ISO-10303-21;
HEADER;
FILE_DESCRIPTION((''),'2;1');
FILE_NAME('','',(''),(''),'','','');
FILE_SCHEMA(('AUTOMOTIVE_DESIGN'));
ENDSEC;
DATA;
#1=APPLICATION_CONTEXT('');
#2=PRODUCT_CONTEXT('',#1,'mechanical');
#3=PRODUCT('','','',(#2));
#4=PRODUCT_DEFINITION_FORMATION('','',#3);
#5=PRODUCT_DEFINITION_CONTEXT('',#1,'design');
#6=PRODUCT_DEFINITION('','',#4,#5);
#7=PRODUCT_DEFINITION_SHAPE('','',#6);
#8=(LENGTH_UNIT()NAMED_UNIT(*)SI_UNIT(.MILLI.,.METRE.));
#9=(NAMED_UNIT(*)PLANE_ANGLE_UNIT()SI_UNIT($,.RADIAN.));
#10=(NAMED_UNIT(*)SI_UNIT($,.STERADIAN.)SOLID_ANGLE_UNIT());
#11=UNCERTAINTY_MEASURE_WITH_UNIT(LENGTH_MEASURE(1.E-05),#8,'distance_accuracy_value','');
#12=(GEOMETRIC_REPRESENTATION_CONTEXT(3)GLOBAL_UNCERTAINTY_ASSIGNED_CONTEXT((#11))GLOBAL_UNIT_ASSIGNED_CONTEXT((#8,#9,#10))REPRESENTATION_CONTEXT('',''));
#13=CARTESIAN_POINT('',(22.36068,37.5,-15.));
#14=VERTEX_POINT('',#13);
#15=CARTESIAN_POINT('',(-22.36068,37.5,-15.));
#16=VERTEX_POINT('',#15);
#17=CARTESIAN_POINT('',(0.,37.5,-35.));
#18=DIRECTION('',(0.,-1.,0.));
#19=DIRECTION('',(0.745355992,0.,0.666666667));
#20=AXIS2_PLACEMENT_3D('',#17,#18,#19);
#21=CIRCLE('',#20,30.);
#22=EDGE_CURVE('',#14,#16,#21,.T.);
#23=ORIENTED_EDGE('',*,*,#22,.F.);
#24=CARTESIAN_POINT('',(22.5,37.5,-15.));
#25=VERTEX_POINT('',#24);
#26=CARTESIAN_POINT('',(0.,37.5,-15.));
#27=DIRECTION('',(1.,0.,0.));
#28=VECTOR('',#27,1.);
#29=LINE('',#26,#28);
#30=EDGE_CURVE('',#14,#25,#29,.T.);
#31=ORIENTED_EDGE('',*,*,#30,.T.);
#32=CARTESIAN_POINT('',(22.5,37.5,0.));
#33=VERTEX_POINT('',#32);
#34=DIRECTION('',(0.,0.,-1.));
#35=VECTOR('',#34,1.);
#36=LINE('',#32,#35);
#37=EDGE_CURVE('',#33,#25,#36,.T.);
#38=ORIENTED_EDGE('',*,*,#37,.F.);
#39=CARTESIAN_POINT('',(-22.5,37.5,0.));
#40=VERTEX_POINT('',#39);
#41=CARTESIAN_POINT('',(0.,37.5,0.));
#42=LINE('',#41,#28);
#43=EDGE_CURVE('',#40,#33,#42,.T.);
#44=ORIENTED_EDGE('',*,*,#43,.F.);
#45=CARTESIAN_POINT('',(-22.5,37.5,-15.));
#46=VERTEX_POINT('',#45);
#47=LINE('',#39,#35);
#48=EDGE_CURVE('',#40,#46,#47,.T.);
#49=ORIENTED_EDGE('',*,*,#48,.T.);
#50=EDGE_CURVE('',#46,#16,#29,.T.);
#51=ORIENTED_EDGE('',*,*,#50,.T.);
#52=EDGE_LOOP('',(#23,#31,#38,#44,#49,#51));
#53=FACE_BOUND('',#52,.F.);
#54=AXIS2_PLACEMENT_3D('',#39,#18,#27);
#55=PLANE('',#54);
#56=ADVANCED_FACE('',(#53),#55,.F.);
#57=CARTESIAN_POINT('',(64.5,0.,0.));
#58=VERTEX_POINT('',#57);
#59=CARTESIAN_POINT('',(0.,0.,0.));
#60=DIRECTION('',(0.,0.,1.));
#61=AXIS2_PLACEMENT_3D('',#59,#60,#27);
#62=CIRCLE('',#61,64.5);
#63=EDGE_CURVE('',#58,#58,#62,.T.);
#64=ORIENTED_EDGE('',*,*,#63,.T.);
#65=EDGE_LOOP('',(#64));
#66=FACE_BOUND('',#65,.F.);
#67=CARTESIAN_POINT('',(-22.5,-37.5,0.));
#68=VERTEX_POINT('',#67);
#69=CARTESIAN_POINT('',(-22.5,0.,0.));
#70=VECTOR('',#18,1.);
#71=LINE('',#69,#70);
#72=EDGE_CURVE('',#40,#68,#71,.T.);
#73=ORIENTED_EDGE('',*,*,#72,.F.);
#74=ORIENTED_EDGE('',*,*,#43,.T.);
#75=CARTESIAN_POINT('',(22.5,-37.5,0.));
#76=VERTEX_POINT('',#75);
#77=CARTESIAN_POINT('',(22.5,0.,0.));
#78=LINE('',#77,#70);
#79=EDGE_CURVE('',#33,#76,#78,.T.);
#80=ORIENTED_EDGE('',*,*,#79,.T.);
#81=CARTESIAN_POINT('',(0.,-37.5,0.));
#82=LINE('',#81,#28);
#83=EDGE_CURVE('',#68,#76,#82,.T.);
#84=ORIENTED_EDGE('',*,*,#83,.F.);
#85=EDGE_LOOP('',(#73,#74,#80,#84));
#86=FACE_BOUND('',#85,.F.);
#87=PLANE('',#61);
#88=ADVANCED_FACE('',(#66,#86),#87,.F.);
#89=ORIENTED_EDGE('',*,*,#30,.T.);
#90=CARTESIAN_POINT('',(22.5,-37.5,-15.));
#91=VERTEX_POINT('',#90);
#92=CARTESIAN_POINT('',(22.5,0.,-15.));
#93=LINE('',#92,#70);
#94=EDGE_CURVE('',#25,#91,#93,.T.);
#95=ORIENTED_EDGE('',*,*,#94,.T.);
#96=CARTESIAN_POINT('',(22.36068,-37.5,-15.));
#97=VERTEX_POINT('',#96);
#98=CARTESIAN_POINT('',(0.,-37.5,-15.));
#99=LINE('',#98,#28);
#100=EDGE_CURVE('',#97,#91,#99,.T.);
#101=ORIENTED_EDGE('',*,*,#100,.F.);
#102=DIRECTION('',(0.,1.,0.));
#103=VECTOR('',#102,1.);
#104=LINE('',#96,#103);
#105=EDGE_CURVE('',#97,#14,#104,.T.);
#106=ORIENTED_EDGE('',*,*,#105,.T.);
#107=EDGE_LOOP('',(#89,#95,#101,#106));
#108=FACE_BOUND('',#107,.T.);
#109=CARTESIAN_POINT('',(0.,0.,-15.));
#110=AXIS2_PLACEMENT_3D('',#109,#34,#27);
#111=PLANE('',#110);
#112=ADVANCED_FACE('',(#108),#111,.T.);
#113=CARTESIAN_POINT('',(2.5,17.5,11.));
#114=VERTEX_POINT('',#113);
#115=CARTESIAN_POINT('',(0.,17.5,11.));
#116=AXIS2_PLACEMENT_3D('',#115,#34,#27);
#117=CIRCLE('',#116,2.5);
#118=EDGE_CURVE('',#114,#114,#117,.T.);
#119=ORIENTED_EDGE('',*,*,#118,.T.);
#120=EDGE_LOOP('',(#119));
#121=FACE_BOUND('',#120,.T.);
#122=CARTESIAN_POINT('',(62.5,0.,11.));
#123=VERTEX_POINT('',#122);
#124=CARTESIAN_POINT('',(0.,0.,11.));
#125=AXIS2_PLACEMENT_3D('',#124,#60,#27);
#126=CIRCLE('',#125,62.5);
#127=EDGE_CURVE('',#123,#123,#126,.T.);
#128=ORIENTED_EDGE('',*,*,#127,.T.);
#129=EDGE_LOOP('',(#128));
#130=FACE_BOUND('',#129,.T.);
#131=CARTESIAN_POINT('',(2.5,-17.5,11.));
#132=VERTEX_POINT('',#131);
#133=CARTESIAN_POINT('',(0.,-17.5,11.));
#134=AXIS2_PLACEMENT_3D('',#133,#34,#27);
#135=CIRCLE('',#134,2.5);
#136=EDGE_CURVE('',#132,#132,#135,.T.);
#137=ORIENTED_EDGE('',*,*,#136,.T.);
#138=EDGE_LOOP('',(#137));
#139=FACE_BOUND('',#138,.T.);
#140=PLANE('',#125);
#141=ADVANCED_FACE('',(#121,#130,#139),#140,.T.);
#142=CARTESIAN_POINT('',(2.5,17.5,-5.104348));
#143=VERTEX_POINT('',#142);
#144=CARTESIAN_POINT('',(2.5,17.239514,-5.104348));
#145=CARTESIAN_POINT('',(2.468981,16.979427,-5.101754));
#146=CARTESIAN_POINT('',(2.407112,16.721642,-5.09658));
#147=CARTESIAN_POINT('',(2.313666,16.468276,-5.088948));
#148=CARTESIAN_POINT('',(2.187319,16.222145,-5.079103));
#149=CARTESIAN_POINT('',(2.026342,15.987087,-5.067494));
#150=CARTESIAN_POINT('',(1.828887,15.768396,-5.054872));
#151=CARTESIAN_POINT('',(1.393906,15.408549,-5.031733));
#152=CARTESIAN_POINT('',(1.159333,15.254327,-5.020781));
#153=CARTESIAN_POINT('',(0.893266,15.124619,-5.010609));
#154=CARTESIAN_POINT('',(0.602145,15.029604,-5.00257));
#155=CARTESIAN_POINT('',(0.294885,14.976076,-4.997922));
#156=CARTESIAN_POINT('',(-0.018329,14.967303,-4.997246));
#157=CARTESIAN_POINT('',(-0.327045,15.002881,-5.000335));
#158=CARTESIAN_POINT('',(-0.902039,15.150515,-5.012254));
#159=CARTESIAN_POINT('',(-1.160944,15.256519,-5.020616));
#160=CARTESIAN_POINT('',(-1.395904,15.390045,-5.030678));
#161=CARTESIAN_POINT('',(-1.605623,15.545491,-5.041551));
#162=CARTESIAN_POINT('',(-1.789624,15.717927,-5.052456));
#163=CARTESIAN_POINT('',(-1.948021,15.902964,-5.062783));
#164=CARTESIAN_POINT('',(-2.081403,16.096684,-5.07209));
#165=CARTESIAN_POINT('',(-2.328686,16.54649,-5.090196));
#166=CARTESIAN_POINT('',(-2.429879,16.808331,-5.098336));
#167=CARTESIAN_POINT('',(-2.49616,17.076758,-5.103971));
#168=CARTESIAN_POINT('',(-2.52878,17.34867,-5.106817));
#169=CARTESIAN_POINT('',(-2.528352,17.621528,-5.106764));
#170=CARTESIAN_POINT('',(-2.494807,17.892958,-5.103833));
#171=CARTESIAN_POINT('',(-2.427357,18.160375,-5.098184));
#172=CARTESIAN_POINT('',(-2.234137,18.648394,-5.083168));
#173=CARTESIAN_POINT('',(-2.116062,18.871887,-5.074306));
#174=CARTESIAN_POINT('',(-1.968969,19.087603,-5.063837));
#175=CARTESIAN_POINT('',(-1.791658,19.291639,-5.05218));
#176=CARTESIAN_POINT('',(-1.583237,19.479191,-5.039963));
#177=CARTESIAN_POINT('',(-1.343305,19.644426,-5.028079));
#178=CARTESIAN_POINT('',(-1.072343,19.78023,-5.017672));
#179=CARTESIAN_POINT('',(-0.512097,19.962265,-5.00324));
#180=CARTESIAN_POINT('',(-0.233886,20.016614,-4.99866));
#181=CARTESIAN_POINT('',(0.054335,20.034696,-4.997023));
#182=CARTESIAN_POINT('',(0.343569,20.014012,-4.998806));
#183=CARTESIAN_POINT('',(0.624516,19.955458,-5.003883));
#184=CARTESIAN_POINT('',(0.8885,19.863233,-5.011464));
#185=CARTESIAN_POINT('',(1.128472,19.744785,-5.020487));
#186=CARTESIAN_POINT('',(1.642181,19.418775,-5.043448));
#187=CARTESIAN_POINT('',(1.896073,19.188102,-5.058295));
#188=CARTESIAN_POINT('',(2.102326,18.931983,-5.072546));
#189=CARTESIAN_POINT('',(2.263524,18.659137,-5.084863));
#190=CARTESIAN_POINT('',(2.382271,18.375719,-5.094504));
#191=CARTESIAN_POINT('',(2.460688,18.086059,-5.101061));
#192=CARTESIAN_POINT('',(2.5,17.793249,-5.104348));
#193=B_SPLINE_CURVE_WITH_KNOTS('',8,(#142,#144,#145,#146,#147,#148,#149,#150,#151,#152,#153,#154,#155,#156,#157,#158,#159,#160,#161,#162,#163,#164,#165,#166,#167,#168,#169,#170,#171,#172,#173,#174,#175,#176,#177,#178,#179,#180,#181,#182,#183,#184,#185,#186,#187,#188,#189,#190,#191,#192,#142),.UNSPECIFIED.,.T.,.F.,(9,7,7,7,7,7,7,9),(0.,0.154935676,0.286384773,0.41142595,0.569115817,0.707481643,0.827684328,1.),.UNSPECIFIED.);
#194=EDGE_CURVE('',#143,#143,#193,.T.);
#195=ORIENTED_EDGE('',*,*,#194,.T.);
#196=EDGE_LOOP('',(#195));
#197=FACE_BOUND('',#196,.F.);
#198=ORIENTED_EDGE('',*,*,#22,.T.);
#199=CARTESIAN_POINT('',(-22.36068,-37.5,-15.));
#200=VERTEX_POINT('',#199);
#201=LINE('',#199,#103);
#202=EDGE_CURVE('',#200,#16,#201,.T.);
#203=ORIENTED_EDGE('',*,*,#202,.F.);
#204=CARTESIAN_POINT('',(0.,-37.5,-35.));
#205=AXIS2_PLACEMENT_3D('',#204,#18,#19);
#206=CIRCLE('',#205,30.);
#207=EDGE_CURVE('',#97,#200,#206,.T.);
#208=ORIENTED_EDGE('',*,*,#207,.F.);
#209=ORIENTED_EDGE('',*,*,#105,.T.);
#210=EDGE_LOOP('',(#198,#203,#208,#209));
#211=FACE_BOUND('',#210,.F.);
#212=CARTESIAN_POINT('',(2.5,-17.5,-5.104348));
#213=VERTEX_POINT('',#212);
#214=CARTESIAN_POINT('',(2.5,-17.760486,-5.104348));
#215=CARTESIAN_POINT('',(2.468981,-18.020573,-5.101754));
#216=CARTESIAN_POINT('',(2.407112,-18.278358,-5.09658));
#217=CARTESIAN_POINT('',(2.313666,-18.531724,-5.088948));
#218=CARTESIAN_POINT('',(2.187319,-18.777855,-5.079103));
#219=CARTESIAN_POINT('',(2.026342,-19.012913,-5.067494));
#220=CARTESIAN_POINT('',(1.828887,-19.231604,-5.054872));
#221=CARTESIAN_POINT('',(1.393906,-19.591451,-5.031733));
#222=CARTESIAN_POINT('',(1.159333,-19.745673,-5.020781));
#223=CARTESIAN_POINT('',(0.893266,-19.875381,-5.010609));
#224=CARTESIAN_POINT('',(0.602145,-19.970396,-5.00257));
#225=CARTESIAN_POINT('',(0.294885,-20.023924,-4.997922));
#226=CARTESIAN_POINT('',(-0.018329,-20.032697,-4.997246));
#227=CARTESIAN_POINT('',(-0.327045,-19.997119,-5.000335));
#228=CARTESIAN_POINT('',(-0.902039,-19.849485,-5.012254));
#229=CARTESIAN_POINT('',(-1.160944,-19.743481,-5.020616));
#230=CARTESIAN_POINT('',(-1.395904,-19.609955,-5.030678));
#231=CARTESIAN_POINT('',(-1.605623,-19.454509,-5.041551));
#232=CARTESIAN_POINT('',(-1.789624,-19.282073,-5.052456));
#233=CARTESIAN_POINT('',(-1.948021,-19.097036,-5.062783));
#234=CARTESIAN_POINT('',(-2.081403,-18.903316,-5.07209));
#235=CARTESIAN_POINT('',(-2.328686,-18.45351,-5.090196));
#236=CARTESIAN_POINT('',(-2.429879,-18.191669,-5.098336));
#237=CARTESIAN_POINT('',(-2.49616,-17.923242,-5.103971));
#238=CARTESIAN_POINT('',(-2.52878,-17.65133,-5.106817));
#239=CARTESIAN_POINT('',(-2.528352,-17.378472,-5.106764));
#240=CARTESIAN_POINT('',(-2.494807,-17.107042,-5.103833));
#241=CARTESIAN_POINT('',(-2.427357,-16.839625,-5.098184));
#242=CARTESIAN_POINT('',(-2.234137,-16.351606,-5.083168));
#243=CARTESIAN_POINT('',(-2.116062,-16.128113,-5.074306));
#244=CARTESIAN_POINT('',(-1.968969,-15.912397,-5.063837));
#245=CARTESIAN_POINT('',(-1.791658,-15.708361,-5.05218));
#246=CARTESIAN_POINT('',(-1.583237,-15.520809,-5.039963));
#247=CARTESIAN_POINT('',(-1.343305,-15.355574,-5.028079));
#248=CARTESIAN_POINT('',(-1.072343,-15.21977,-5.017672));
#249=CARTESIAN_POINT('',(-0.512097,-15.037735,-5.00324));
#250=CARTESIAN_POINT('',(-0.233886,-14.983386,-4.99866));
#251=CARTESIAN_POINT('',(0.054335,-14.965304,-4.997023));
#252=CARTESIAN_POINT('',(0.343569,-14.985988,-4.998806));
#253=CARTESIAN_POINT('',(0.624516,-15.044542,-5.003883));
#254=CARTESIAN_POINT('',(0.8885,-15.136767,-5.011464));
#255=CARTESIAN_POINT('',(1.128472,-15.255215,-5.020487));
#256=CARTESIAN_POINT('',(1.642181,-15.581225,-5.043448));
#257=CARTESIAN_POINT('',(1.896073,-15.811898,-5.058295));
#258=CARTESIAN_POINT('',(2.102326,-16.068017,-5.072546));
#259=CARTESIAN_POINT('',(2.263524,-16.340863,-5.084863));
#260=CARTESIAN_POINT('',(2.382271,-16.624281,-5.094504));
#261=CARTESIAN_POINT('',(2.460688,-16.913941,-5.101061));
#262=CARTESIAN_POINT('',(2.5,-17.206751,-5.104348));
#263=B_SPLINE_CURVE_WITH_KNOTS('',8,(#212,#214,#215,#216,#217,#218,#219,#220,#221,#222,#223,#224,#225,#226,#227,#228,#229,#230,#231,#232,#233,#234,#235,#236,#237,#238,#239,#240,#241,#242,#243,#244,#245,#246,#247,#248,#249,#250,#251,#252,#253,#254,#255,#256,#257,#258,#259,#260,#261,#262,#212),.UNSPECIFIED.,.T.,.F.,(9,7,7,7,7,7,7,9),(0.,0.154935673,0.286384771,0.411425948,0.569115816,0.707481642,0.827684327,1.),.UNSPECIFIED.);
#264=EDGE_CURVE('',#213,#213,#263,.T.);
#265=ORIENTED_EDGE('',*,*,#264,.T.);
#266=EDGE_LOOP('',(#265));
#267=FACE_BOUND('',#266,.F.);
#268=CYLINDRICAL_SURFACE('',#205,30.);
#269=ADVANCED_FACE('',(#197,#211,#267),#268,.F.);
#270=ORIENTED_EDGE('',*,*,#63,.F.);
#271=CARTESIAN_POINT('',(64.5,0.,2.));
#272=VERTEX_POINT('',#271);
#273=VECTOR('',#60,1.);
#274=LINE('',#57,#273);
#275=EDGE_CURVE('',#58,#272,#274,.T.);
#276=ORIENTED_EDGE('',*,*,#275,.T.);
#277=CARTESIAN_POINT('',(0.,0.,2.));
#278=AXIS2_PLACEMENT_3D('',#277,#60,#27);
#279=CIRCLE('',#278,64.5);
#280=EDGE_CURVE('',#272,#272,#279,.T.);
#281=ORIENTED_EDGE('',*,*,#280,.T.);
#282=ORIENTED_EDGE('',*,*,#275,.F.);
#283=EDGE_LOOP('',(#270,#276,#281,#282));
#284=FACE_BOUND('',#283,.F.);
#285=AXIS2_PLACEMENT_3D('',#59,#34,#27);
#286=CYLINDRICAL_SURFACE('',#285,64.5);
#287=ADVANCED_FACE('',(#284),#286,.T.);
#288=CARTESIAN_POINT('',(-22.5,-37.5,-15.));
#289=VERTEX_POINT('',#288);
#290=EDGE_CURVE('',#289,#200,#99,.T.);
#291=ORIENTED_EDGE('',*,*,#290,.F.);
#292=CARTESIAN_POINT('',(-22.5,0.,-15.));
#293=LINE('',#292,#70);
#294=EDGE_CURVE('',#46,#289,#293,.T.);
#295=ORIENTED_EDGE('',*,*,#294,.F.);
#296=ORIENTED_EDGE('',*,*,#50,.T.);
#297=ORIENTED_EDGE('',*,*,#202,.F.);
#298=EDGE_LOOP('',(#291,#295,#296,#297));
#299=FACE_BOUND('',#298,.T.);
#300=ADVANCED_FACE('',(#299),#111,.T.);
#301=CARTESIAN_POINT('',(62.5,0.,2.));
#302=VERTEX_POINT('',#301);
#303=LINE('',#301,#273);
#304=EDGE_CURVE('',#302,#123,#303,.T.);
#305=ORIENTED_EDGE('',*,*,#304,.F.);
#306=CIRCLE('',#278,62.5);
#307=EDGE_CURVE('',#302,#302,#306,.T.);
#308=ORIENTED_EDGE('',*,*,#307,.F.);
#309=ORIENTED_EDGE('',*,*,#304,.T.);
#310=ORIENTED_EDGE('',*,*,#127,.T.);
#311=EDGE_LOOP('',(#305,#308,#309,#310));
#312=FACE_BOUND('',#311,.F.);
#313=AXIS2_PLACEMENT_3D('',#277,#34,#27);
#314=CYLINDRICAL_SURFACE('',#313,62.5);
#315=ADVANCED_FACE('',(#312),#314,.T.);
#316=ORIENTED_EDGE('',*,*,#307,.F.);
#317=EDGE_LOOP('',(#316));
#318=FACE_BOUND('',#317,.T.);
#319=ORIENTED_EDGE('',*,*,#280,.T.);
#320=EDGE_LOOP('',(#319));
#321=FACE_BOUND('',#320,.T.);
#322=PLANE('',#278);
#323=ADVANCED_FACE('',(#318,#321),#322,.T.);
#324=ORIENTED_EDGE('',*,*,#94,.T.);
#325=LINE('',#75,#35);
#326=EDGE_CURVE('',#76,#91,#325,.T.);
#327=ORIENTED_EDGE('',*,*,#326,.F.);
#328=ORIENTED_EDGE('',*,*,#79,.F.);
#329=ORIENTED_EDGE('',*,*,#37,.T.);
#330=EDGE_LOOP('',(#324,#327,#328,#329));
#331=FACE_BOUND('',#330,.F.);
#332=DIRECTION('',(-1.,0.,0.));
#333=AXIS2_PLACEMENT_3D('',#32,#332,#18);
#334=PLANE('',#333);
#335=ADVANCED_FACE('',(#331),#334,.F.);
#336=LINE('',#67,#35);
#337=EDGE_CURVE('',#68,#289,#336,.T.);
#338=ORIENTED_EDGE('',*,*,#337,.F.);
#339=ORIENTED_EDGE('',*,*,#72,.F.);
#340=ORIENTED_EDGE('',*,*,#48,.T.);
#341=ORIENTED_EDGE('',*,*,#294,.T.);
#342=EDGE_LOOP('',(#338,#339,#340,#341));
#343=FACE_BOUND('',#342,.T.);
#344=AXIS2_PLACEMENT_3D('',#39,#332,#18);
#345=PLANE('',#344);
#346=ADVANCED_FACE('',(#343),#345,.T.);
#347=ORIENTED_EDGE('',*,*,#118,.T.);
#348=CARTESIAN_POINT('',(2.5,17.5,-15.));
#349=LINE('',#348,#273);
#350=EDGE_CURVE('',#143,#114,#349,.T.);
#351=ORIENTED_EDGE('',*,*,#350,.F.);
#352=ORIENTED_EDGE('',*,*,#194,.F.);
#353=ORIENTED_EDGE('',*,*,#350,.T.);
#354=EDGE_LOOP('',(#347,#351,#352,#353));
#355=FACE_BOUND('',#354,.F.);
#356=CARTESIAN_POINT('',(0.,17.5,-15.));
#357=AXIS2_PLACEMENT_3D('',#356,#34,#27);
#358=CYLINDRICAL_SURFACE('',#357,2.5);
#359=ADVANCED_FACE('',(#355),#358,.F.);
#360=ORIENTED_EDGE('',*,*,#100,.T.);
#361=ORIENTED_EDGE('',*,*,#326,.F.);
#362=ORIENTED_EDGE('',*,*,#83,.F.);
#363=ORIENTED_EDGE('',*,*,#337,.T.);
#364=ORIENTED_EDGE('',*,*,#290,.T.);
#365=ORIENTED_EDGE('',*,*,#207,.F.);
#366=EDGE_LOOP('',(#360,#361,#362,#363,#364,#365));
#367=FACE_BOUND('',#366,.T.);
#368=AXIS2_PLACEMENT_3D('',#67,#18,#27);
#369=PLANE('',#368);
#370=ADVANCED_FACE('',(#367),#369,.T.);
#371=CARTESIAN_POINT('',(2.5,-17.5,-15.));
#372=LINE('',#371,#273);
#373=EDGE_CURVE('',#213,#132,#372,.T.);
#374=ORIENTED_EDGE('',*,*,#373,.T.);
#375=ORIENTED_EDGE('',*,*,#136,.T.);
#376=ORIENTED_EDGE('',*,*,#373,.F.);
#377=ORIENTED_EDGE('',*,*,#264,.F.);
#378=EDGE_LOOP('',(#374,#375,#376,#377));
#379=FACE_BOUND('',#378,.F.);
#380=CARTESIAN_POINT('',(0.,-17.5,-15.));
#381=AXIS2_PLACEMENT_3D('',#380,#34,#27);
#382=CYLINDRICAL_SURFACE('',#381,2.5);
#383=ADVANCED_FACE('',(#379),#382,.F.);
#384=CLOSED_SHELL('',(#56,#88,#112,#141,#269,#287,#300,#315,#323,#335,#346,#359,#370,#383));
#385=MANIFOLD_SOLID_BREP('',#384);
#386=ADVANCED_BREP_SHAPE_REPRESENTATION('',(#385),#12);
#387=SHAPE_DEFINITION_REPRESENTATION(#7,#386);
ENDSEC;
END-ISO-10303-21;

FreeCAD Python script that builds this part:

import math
import FreeCAD as App
import Part
import Sketcher

V = App.Vector
Q = App.Units.Quantity

doc = App.newDocument("Part")
body = doc.addObject("PartDesign::Body", "Body")

# Sketch on XY plane
sketch1 = body.newObject("Sketcher::SketchObject", "Sketch")
sketch1.AttachmentSupport = (doc.getObject("XY_Plane"), [""])
sketch1.MapMode = "FlatFace"
sketch1.addGeometry(Part.Circle(V(0, 0, 0), V(0, 0, 1), 64), False)
sketch1.addConstraint(Sketcher.Constraint("Coincident", 0, 3, -1, 1))
sketch1.addConstraint(Sketcher.Constraint("Diameter", 0, Q("129 mm")))
pad1 = body.newObject("PartDesign::Pad", "Pad")
pad1.Profile = sketch1
pad1.Length = 2

# Sketch on XY plane
sketch2 = body.newObject("Sketcher::SketchObject", "Sketch001")
sketch2.AttachmentSupport = (doc.getObject("XY_Plane"), [""])
sketch2.MapMode = "FlatFace"
sketch2.AttachmentOffset = App.Placement(V(0, 0, 2), App.Rotation())
sketch2.addGeometry(Part.Circle(V(0, 0, 0), V(0, 0, 1), 62), False)
sketch2.addConstraint(Sketcher.Constraint("Coincident", 0, 3, -1, 1))
sketch2.addConstraint(Sketcher.Constraint("Diameter", 0, Q("125 mm")))
pad2 = body.newObject("PartDesign::Pad", "Pad001")
pad2.Profile = sketch2
pad2.Length = 9

# Sketch on XY plane
sketch3 = body.newObject("Sketcher::SketchObject", "Sketch002")
sketch3.AttachmentSupport = (doc.getObject("XY_Plane"), [""])
sketch3.MapMode = "FlatFace"
sketch3.addGeometry(Part.LineSegment(V(-22, -38, 0), V(-22, 38, 0)), False)
sketch3.addGeometry(Part.LineSegment(V(-22, 38, 0), V(22, 38, 0)), False)
sketch3.addGeometry(Part.LineSegment(V(22, 38, 0), V(22, -38, 0)), False)
sketch3.addGeometry(Part.LineSegment(V(22, -38, 0), V(-22, -38, 0)), False)
sketch3.addConstraint(Sketcher.Constraint("Coincident", 0, 2, 1, 1))
sketch3.addConstraint(Sketcher.Constraint("Coincident", 1, 2, 2, 1))
sketch3.addConstraint(Sketcher.Constraint("Coincident", 2, 2, 3, 1))
sketch3.addConstraint(Sketcher.Constraint("Coincident", 3, 2, 0, 1))
sketch3.addConstraint(Sketcher.Constraint("Vertical", 0))
sketch3.addConstraint(Sketcher.Constraint("Horizontal", 1))
sketch3.addConstraint(Sketcher.Constraint("Vertical", 2))
sketch3.addConstraint(Sketcher.Constraint("Horizontal", 3))
sketch3.addConstraint(Sketcher.Constraint("Symmetric", 0, 2, 2, 2, -1, 1))
sketch3.addConstraint(Sketcher.Constraint("DistanceX", 1, 1, 1, 2, Q("45 mm")))
sketch3.addConstraint(Sketcher.Constraint("DistanceY", 0, 1, 0, 2, Q("75 mm")))
pad3 = body.newObject("PartDesign::Pad", "Pad002")
pad3.Profile = sketch3
pad3.Length = 15
pad3.Reversed = True

# Sketch on XZ plane
sketch4 = body.newObject("Sketcher::SketchObject", "Sketch003")
sketch4.AttachmentSupport = (doc.getObject("XZ_Plane"), [""])
sketch4.MapMode = "FlatFace"
sketch4.AttachmentOffset = App.Placement(V(0, 0, 37.5), App.Rotation())
sketch4.addGeometry(Part.LineSegment(V(-22, -15, 0), V(22, -15, 0)), False)
sketch4.addGeometry(Part.ArcOfCircle(Part.Circle(V(0, -35, 0), V(0, 0, 1), 30), math.radians(42), math.radians(138)), False)
sketch4.addConstraint(Sketcher.Constraint("Coincident", 0, 1, 1, 2))
sketch4.addConstraint(Sketcher.Constraint("Coincident", 1, 1, 0, 2))
sketch4.addConstraint(Sketcher.Constraint("Horizontal", 0))
sketch4.addConstraint(Sketcher.Constraint("PointOnObject", 1, 3, -2))
sketch4.addConstraint(Sketcher.Constraint("Radius", 1, Q("30 mm")))
sketch4.addConstraint(Sketcher.Constraint("DistanceY", 1, 3, -1, 1, Q("35 mm")))
sketch4.addConstraint(Sketcher.Constraint("DistanceY", 0, 1, -1, 1, Q("15 mm")))
pocket1 = body.newObject("PartDesign::Pocket", "Pocket")
pocket1.Profile = sketch4
pocket1.Length = 75

# Sketch on XY plane
sketch5 = body.newObject("Sketcher::SketchObject", "Sketch004")
sketch5.AttachmentSupport = (doc.getObject("XY_Plane"), [""])
sketch5.MapMode = "FlatFace"
sketch5.AttachmentOffset = App.Placement(V(0, 0, -15), App.Rotation())
sketch5.addGeometry(Part.Circle(V(0, -17.5, 0), V(0, 0, 1), 2.5), False)
sketch5.addGeometry(Part.Circle(V(0, 17.5, 0), V(0, 0, 1), 2.5), False)
sketch5.addConstraint(Sketcher.Constraint("Equal", 0, 1))
sketch5.addConstraint(Sketcher.Constraint("Symmetric", 0, 3, 1, 3, -1, 1))
sketch5.addConstraint(Sketcher.Constraint("PointOnObject", 0, 3, -2))
sketch5.addConstraint(Sketcher.Constraint("Diameter", 0, Q("5 mm")))
sketch5.addConstraint(Sketcher.Constraint("DistanceY", 0, 3, 1, 3, Q("35 mm")))
pocket2 = body.newObject("PartDesign::Pocket", "Pocket001")
pocket2.Profile = sketch5
pocket2.Length = 35
pocket2.Reversed = True

doc.recompute()
